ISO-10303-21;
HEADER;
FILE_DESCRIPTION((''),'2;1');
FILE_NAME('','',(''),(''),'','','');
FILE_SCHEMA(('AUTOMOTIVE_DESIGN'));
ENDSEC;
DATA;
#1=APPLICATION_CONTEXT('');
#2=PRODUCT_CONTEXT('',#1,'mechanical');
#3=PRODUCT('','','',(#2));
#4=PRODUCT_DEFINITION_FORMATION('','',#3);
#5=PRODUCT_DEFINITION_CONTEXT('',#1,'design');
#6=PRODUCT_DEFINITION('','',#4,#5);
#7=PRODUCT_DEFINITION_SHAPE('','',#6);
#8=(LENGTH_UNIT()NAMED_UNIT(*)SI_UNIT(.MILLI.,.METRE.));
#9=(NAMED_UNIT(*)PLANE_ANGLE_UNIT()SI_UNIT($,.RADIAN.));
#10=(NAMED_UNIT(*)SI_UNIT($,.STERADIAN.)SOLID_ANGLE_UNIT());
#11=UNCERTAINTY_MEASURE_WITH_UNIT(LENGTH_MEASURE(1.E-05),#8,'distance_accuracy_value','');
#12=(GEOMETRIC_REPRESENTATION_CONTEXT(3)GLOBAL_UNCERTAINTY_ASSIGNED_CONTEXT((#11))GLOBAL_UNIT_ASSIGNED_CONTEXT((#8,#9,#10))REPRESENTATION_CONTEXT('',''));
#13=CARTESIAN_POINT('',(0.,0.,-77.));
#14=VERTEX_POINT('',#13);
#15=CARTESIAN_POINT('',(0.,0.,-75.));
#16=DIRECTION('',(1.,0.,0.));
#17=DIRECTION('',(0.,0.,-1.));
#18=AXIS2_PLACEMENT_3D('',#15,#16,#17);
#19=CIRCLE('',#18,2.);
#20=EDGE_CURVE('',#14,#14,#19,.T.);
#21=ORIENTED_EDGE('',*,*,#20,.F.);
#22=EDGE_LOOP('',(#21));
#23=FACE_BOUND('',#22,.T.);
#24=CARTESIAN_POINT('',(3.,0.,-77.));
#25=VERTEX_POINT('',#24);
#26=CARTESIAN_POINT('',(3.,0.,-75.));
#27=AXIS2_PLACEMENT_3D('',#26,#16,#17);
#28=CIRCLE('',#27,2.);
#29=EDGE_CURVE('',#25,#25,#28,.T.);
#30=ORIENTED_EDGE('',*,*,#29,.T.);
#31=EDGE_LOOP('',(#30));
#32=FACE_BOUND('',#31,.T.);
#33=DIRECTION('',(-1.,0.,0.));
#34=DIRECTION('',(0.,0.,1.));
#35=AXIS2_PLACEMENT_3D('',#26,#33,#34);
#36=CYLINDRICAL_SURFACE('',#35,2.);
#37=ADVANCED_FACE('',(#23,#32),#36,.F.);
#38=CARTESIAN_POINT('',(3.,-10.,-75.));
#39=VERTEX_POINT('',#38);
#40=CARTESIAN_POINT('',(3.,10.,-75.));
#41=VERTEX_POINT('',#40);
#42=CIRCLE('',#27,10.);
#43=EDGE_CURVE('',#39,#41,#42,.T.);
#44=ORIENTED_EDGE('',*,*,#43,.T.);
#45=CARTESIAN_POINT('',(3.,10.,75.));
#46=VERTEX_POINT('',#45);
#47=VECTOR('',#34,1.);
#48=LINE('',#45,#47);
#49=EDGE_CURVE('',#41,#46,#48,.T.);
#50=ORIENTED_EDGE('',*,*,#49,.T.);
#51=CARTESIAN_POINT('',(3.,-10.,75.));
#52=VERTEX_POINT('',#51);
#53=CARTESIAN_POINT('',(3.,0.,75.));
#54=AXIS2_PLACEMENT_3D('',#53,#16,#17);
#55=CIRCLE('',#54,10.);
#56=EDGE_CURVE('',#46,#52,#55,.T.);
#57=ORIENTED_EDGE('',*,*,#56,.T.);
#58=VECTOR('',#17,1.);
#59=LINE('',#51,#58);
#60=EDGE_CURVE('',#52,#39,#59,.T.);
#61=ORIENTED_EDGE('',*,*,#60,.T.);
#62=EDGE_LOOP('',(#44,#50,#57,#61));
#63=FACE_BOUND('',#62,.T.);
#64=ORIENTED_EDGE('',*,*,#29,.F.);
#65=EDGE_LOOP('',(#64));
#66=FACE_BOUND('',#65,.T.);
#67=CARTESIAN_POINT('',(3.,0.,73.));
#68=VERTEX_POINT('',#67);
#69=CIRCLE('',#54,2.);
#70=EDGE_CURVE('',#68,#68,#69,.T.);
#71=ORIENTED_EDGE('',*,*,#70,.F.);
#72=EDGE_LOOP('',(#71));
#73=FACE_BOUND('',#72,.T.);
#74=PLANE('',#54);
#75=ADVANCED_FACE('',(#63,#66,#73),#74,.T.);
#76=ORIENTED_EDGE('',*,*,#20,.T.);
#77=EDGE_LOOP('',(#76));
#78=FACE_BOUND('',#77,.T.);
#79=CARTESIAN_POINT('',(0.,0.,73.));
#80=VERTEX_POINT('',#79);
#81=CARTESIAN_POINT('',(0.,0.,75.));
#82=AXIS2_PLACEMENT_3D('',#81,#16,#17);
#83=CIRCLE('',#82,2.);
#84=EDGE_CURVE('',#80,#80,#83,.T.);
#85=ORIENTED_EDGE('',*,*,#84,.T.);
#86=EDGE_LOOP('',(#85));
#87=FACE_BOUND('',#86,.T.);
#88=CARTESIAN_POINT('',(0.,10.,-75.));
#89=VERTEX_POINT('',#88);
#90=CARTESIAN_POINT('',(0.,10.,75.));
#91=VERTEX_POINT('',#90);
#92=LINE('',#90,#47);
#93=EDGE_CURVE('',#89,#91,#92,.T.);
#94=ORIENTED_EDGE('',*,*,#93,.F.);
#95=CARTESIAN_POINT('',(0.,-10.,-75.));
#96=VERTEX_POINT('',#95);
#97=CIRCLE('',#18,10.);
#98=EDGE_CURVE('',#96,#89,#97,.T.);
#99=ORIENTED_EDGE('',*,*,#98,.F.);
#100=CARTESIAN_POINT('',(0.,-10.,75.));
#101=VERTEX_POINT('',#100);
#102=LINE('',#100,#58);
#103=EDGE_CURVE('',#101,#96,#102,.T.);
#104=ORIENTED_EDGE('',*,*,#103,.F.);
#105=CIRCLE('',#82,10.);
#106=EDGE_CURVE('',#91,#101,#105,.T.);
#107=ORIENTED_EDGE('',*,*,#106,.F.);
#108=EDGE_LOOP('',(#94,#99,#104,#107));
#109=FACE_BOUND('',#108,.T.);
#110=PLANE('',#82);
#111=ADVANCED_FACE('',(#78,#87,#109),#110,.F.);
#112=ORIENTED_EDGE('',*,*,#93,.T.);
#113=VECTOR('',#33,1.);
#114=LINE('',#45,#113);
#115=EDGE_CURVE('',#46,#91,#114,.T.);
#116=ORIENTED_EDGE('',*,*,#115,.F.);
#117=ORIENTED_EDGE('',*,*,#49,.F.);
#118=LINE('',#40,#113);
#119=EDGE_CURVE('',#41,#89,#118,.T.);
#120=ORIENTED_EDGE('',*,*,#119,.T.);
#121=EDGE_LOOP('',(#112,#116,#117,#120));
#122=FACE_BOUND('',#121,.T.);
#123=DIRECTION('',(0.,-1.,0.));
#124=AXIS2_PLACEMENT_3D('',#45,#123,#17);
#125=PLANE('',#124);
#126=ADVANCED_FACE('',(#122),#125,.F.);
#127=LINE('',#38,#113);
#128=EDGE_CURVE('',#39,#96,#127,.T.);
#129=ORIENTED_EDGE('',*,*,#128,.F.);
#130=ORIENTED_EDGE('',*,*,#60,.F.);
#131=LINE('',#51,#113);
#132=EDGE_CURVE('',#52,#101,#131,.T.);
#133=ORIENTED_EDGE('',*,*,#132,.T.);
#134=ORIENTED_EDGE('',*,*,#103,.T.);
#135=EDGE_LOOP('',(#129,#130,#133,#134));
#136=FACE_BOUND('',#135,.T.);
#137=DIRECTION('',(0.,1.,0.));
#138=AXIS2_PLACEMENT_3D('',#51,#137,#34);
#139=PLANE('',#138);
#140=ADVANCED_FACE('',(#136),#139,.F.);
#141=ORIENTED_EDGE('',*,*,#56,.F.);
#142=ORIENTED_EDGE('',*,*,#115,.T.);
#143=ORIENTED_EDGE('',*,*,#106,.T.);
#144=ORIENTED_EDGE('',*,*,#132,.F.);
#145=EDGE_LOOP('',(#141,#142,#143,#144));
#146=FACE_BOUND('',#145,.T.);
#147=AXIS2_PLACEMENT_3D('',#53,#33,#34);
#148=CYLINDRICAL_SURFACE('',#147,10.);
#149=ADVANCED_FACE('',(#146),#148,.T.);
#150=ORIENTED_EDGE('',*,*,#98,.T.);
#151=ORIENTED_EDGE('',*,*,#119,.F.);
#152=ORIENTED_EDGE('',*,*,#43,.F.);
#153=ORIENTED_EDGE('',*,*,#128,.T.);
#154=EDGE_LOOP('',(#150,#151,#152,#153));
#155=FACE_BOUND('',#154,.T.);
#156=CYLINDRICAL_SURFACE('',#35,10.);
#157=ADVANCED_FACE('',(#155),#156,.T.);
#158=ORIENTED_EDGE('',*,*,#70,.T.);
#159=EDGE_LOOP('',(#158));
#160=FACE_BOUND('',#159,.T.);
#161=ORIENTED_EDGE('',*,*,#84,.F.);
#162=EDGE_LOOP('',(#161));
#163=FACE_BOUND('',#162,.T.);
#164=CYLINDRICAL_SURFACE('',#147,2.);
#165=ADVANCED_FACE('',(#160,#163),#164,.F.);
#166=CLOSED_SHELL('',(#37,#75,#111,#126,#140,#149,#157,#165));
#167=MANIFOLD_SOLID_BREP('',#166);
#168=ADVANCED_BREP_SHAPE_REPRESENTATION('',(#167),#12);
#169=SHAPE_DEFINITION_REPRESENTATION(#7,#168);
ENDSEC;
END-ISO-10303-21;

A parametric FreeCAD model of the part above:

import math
import FreeCAD as App
import Part
import Sketcher
from FreeCAD import Vector
Q = App.Units.Quantity

doc = App.newDocument("Part")
body = doc.addObject("PartDesign::Body", "Body")

# Sketch on YZ plane
sketch1 = body.newObject("Sketcher::SketchObject", "Sketch")
sketch1.AttachmentSupport = (doc.getObject("YZ_Plane"), [""])
sketch1.MapMode = "FlatFace"
sketch1.addGeometry([
    Part.LineSegment(Vector(10, -75, 0), Vector(10, 75, 0)),  # 0
    Part.ArcOfCircle(Part.Circle(Vector(0, 75, 0), Vector(0, 0, 1), 10), math.radians(0), math.radians(180)),  # 1
    Part.LineSegment(Vector(-10, 75, 0), Vector(-10, -75, 0)),  # 2
    Part.ArcOfCircle(Part.Circle(Vector(0, -75, 0), Vector(0, 0, 1), 10), math.radians(180), math.radians(360)),  # 3
    Part.Circle(Vector(0, -75, 0), Vector(0, 0, 1), 2),  # 4
    Part.Circle(Vector(0, 75, 0), Vector(0, 0, 1), 2),  # 5
], False)
sketch1.addConstraint([
    Sketcher.Constraint("Tangent", 0, 2, 1, 1),
    Sketcher.Constraint("Tangent", 1, 2, 2, 1),
    Sketcher.Constraint("Tangent", 2, 2, 3, 1),
    Sketcher.Constraint("Tangent", 3, 2, 0, 1),
    Sketcher.Constraint("Vertical", 0),
    Sketcher.Constraint("Vertical", 2),
    Sketcher.Constraint("Coincident", 4, 3, 3, 3),
    Sketcher.Constraint("Coincident", 5, 3, 1, 3),
    Sketcher.Constraint("Equal", 4, 5),
    Sketcher.Constraint("Symmetric", 1, 3, 3, 3, -1, 1),
    Sketcher.Constraint("Diameter", 4, Q("4 mm")),
    Sketcher.Constraint("Radius", 1, Q("10 mm")),
    Sketcher.Constraint("DistanceY", 0, 1, 0, 2, Q("150 mm")),
])
pad1 = body.newObject("PartDesign::Pad", "Pad")
pad1.Profile = sketch1
pad1.Length = 3

doc.recompute()
